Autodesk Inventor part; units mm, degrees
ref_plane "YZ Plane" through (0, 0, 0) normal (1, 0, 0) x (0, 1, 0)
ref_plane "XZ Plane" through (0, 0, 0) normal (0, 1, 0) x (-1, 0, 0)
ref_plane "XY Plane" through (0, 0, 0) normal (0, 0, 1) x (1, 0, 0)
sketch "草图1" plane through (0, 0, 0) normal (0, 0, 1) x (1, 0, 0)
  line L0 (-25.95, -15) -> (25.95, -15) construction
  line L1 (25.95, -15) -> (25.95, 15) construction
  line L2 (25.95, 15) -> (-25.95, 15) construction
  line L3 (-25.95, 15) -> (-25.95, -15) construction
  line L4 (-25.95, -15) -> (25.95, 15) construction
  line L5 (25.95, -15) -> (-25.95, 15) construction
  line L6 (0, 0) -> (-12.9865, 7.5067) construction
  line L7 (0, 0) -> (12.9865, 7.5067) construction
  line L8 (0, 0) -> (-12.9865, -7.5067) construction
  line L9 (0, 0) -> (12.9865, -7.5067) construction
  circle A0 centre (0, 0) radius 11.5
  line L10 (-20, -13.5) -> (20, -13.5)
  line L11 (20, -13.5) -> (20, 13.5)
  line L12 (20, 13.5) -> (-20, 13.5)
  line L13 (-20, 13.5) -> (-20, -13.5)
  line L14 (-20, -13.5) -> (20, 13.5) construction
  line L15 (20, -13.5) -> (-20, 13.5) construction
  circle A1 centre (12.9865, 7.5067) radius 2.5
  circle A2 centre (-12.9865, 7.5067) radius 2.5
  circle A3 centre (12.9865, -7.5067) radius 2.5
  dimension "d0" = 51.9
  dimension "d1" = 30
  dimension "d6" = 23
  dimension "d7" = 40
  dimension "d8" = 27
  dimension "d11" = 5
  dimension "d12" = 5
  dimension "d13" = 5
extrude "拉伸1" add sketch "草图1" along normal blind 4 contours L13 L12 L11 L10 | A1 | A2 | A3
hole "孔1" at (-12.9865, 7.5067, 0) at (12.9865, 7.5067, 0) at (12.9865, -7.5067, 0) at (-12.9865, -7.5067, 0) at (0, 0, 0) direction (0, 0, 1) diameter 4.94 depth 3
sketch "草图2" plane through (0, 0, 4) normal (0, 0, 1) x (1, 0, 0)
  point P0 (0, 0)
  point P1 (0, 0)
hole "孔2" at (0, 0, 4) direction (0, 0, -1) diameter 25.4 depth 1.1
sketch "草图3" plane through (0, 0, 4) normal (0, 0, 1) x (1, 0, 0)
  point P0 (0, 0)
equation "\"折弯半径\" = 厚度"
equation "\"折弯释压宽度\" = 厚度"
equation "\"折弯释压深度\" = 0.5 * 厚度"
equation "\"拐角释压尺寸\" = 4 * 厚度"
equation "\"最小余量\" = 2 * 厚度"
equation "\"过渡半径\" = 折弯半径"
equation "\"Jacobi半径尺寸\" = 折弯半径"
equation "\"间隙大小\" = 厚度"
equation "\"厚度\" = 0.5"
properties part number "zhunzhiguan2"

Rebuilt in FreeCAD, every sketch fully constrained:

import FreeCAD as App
import Part
import Sketcher
from FreeCAD import Vector
Q = App.Units.Quantity


def add_polygon(sketch, points):
    """Adds a closed chain of lines whose ends are joined by coincident constraints."""
    first, n = sketch.GeometryCount, len(points)
    for a, b in zip(points, points[1:] + points[:1]):
        sketch.addGeometry(Part.LineSegment(App.Vector(*a, 0), App.Vector(*b, 0)), False)
    for i in range(n):
        sketch.addConstraint(Sketcher.Constraint("Coincident", first + i, 2, first + (i + 1) % n, 1))

doc = App.newDocument("Part")
body = doc.addObject("PartDesign::Body", "Body")

# Sketch on XY plane
sketch1 = body.newObject("Sketcher::SketchObject", "Sketch")
sketch1.AttachmentSupport = (doc.getObject("XY_Plane"), [""])
sketch1.MapMode = "FlatFace"
add_polygon(sketch1, [(-20, 14), (-20, -14), (20, -14), (20, 14)])  # lines 0-3
sketch1.addGeometry(Part.Circle(Vector(0, 0, 0), Vector(0, 0, 1), 12), False)  # 4
sketch1.addConstraint([
    Sketcher.Constraint("Vertical", 0),
    Sketcher.Constraint("Horizontal", 1),
    Sketcher.Constraint("Vertical", 2),
    Sketcher.Constraint("Horizontal", 3),
    Sketcher.Constraint("Coincident", 4, 3, -1, 1),
    Sketcher.Constraint("Symmetric", 0, 2, 2, 2, -1, 1),
    Sketcher.Constraint("Diameter", 4, Q("0.9055 in")),
    Sketcher.Constraint("DistanceY", 0, 2, 0, 1, Q("1.063 in")),
    Sketcher.Constraint("DistanceX", 1, 1, 1, 2, Q("1.5748 in")),
])
pad1 = body.newObject("PartDesign::Pad", "Pad")
pad1.Profile = sketch1
pad1.Length = 4

# Sketch on XY plane
sketch2 = body.newObject("Sketcher::SketchObject", "Sketch001")
sketch2.AttachmentSupport = (doc.getObject("XY_Plane"), [""])
sketch2.MapMode = "FlatFace"
sketch2.addGeometry([
    Part.Circle(Vector(-13, 7.5, 0), Vector(0, 0, 1), 2.5),  # 0
    Part.Circle(Vector(13, 7.5, 0), Vector(0, 0, 1), 2.5),  # 1
    Part.Circle(Vector(13, -7.5, 0), Vector(0, 0, 1), 2.5),  # 2
    Part.Circle(Vector(-13, -7.5, 0), Vector(0, 0, 1), 2.5),  # 3
    Part.Circle(Vector(0, 0, 0), Vector(0, 0, 1), 2.5),  # 4
], False)
sketch2.addConstraint([
    Sketcher.Constraint("Coincident", 4, 3, -1, 1),
    Sketcher.Constraint("Equal", 0, 1),
    Sketcher.Constraint("Equal", 1, 2),
    Sketcher.Constraint("Equal", 2, 3),
    Sketcher.Constraint("Equal", 3, 4),
    Sketcher.Constraint("Symmetric", 0, 3, 2, 3, -1, 1),
    Sketcher.Constraint("Symmetric", 1, 3, 3, 3, -1, 1),
    Sketcher.Constraint("Symmetric", 0, 3, 1, 3, -2),
    Sketcher.Constraint("Diameter", 0, Q("0.1945 in")),
    Sketcher.Constraint("DistanceX", 0, 3, -1, 1, 12.9865),
    Sketcher.Constraint("DistanceY", -1, 1, 0, 3, 7.5067),
])
doc.recompute()
hole = body.newObject("PartDesign::Hole", "Hole")
hole.Profile = sketch2
hole.ThreadType = "None"
hole.Diameter = Q("0.1944882 in")
hole.DepthType = "Dimension"
hole.Depth = Q("0.1181102 in")
hole.DrillPoint = "Flat"
hole.Reversed = True

# Sketch on XY plane
sketch3 = body.newObject("Sketcher::SketchObject", "Sketch002")
sketch3.AttachmentSupport = (doc.getObject("XY_Plane"), [""])
sketch3.MapMode = "FlatFace"
sketch3.AttachmentOffset = App.Placement(Vector(0, 0, 4), App.Rotation())
sketch3.addGeometry(Part.Circle(Vector(0, 0, 0), Vector(0, 0, 1), 13), False)
sketch3.addConstraint([
    Sketcher.Constraint("Coincident", 0, 3, -1, 1),
    Sketcher.Constraint("Diameter", 0, Q("1 in")),
])
doc.recompute()
hole2 = body.newObject("PartDesign::Hole", "Hole001")
hole2.Profile = sketch3
hole2.ThreadType = "None"
hole2.Diameter = Q("1 in")
hole2.DepthType = "Dimension"
hole2.Depth = Q("0.0433071 in")
hole2.DrillPoint = "Flat"

doc.recompute()
